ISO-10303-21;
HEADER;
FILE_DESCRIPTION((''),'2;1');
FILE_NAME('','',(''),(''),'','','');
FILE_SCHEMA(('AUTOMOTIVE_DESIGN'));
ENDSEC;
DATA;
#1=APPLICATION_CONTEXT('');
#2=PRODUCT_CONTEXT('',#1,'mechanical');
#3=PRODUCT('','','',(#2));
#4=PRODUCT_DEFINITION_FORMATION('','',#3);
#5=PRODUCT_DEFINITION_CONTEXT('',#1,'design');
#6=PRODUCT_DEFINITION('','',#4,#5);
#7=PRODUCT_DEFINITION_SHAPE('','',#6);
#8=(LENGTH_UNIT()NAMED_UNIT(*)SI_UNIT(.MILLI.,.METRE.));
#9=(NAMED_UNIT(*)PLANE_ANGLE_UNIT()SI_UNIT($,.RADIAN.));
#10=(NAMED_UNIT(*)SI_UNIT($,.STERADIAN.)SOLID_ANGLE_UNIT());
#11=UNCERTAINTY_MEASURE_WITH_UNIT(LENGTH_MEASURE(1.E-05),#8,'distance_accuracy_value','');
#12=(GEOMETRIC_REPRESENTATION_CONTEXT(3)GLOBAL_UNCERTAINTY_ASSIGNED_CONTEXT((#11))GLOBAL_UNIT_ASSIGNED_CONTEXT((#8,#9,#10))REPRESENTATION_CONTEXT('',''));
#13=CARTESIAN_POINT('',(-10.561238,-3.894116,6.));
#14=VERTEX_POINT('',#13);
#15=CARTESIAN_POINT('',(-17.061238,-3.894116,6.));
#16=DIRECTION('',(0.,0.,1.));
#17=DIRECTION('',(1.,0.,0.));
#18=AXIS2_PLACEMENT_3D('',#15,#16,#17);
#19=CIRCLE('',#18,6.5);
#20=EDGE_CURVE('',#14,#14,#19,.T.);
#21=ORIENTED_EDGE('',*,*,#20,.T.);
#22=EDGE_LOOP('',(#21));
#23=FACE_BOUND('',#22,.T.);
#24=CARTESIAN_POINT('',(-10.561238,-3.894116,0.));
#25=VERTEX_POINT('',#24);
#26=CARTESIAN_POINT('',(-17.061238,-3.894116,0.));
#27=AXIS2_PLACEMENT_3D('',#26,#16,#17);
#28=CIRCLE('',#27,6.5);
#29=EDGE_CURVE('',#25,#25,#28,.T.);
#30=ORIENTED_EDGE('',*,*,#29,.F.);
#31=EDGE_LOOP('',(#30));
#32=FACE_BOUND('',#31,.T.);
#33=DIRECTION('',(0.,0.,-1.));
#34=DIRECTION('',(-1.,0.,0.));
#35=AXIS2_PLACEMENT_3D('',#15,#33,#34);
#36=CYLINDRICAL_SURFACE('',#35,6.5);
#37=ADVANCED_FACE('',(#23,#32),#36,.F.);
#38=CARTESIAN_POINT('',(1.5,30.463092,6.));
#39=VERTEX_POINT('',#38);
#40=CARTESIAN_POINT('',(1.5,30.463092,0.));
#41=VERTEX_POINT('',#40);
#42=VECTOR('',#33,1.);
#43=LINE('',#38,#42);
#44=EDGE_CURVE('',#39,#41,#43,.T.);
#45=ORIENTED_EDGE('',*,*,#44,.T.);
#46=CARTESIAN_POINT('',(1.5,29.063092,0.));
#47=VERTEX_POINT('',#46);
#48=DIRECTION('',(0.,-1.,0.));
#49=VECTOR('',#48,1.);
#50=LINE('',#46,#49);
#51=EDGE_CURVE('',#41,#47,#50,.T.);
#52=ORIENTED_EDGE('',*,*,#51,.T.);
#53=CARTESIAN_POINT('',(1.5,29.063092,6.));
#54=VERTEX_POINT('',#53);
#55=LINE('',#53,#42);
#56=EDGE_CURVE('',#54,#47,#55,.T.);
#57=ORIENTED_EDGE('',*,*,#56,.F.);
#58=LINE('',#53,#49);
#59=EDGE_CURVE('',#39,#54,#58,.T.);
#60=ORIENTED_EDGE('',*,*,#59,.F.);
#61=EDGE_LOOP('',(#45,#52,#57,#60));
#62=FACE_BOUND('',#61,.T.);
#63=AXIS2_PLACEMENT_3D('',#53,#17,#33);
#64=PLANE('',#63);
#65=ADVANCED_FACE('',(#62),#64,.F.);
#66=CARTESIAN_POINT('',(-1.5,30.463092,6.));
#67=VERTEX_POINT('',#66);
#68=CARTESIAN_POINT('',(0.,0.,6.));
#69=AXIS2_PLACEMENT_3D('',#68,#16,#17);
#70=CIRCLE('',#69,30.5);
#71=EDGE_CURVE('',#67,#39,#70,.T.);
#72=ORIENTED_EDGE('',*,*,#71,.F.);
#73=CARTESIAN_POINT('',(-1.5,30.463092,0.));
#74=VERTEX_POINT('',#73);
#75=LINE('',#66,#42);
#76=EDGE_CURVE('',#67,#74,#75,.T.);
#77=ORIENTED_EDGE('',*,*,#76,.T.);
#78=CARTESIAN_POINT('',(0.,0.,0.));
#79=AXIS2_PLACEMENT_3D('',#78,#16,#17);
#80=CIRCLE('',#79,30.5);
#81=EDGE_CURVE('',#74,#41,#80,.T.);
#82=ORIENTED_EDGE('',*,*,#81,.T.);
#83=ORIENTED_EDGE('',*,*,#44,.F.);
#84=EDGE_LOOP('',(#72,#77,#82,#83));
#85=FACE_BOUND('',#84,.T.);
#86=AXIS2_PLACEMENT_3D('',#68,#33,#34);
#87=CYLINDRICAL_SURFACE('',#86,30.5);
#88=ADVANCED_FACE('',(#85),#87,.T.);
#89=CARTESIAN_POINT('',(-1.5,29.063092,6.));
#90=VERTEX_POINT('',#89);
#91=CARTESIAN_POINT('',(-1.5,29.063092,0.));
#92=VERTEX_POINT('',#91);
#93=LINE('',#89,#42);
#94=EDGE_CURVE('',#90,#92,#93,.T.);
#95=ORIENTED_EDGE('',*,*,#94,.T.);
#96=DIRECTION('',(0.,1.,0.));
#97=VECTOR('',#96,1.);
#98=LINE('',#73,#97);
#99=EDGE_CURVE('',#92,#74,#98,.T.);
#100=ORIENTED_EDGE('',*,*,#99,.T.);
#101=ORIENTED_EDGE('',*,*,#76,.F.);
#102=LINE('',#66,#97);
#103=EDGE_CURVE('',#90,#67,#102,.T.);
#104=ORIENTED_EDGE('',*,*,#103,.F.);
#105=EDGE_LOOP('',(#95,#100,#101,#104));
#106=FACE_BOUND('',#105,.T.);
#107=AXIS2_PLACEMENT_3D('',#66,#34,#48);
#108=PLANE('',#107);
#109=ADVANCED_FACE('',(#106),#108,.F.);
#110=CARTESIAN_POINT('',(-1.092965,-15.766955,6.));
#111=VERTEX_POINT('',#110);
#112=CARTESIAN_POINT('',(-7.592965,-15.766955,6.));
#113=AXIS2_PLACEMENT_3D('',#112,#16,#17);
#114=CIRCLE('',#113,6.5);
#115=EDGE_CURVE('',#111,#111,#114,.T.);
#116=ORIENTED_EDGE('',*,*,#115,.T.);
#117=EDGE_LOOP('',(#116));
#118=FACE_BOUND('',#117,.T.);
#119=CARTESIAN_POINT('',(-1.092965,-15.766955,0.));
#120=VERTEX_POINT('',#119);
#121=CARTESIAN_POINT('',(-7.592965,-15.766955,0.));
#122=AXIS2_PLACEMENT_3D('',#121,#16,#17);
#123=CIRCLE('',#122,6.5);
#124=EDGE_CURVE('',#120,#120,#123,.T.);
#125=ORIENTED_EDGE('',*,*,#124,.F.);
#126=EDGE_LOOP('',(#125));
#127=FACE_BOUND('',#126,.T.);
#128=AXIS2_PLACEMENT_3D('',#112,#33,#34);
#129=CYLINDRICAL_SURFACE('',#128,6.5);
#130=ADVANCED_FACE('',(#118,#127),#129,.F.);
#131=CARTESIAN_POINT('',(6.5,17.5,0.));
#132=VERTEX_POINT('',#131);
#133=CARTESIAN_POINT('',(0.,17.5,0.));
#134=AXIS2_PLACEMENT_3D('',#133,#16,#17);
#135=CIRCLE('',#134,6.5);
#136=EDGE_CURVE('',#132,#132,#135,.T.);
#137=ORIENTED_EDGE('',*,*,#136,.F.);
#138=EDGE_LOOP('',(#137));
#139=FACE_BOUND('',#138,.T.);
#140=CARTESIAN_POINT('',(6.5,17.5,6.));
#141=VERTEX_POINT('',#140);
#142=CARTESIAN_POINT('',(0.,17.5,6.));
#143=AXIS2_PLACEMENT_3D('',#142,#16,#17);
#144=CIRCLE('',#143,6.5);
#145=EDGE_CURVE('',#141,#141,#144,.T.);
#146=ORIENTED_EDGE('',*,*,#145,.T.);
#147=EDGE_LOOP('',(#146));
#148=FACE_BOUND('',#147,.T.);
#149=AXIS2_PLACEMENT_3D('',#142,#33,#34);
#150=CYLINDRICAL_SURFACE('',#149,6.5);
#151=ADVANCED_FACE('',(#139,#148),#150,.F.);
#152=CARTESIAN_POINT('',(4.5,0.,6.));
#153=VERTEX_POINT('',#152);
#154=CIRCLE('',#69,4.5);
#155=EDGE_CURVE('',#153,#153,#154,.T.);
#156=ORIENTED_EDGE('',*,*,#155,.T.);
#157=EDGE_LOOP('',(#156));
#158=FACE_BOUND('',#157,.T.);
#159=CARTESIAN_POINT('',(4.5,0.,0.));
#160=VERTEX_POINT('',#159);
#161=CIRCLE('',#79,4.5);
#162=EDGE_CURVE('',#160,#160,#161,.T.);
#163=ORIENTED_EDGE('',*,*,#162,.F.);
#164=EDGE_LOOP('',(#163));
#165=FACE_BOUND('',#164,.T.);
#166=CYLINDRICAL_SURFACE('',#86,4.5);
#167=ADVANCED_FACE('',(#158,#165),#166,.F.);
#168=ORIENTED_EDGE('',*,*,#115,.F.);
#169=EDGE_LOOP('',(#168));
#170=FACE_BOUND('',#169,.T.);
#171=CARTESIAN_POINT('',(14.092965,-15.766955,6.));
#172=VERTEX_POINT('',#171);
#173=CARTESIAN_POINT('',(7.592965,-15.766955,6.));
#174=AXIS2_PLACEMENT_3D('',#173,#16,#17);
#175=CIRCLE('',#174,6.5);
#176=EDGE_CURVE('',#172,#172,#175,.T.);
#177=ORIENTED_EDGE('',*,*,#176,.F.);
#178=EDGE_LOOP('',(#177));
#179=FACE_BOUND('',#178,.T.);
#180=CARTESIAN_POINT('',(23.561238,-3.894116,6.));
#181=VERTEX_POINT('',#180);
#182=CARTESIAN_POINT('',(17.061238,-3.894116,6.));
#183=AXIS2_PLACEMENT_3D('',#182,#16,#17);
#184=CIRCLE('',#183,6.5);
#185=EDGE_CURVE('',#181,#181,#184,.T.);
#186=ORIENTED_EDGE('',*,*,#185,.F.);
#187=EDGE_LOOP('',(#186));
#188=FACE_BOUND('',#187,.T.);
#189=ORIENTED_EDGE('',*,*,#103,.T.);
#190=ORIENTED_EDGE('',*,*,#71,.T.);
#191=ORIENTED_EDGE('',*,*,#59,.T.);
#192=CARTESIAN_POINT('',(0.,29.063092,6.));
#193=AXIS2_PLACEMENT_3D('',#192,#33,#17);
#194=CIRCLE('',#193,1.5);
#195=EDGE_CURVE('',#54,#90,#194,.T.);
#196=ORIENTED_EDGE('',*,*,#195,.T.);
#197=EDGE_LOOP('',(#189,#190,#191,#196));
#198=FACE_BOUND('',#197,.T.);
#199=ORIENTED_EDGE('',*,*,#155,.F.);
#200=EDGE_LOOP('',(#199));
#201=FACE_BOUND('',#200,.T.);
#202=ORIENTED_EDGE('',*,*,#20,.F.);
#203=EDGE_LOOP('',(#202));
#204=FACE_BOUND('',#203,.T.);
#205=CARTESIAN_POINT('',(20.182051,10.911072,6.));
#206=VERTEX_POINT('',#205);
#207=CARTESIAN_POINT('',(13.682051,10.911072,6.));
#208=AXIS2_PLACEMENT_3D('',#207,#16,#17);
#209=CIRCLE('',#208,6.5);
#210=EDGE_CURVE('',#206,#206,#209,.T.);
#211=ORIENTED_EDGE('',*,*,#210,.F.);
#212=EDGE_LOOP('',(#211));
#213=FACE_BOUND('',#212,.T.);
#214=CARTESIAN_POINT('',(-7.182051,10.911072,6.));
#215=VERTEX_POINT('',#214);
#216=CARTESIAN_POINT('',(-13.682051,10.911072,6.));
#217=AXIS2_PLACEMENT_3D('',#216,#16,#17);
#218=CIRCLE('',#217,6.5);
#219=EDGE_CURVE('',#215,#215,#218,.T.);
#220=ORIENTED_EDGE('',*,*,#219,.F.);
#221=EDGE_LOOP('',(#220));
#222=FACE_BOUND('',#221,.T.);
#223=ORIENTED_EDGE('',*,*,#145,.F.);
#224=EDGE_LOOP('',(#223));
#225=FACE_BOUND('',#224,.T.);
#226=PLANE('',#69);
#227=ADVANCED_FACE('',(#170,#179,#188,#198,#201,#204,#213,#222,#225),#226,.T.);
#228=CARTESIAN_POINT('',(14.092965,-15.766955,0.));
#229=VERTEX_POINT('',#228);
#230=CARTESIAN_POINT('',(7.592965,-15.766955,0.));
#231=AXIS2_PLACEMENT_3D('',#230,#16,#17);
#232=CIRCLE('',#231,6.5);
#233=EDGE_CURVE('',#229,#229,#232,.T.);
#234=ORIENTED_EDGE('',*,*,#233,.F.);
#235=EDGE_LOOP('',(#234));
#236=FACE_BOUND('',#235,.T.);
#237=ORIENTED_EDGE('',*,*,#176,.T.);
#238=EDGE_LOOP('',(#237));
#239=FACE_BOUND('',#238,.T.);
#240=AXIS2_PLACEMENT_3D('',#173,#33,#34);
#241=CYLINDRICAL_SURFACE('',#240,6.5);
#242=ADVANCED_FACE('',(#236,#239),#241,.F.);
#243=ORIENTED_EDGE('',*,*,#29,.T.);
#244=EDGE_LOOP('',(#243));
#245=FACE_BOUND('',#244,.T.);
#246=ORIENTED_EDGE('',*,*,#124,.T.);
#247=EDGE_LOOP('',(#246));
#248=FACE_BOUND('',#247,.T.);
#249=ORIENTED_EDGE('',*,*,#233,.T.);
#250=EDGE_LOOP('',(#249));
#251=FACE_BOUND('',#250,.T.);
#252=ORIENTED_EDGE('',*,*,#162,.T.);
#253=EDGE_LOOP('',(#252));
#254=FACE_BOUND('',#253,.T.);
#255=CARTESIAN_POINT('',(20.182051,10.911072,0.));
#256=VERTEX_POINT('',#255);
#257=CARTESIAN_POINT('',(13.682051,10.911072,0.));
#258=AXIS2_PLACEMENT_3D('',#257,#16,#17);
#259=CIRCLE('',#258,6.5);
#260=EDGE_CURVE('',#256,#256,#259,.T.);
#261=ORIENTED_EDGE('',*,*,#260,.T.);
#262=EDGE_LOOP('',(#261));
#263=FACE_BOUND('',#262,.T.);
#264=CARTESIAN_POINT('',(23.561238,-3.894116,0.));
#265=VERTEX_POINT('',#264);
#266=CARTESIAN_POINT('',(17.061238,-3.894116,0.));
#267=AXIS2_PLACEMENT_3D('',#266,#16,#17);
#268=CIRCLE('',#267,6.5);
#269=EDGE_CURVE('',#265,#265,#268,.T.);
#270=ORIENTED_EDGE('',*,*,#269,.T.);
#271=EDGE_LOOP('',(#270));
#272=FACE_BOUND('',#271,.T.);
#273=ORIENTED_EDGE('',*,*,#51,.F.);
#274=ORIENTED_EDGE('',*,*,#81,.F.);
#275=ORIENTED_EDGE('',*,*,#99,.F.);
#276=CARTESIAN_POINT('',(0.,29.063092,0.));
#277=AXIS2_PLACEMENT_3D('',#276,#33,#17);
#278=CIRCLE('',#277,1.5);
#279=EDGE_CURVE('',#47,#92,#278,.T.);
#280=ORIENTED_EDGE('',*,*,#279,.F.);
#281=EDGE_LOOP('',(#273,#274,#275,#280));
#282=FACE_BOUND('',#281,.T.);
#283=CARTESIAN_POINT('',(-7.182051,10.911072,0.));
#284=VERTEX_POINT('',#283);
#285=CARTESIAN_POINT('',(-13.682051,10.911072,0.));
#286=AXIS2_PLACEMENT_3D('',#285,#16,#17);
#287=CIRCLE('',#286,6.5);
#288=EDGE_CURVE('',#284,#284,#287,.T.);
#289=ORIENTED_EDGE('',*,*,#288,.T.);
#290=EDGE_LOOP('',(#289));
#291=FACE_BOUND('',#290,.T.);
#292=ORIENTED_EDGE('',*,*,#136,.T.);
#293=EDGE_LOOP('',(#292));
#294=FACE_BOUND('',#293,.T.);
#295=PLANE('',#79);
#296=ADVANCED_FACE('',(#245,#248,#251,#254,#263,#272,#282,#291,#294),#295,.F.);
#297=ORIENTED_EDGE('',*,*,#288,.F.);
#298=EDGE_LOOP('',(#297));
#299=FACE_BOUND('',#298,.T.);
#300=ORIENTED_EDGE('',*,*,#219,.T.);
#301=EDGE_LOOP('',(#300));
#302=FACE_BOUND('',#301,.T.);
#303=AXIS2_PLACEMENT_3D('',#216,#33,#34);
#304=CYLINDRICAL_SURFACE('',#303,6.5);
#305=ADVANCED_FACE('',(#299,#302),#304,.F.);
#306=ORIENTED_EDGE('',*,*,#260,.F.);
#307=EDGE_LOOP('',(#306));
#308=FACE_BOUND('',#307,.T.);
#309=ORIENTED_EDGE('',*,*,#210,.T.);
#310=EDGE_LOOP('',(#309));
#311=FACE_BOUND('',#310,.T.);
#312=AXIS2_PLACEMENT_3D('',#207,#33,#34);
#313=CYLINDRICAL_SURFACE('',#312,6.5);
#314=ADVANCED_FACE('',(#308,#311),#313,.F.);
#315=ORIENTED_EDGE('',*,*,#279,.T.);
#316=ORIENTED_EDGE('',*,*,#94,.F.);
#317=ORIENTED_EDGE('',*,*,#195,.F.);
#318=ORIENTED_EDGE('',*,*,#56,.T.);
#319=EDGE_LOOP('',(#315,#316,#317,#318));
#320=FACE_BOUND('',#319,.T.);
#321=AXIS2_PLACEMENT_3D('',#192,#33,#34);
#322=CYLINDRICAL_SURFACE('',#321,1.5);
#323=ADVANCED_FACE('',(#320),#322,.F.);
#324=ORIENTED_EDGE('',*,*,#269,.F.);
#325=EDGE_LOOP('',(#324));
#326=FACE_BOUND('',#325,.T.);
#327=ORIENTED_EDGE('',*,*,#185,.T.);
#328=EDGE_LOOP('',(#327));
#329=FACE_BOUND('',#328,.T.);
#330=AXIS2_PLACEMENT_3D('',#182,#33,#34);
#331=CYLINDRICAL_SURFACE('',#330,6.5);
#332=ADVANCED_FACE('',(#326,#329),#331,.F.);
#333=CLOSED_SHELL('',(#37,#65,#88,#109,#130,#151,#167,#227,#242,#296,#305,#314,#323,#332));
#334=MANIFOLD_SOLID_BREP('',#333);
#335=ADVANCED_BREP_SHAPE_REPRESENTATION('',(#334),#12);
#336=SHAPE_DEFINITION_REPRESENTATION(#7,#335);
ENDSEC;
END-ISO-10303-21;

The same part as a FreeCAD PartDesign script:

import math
import FreeCAD as App
import Part
import Sketcher

V = App.Vector

doc = App.newDocument("Part")
params = doc.addObject("Spreadsheet::Sheet", "Params")
for row, (alias, value) in enumerate([
    ("sketch1_diameter", "13 mm"),
    ("sketch1_diameter2", "9 mm"),
    ("sketch1_radius", "30.5 mm"),
    ("sketch1_radius2", "1.5 mm"),
    ("sketch1_height", "1.4 mm"),
    ("pad1_length", "6 mm"),
], start=1):
    params.set(f"A{row}", alias)
    params.set(f"B{row}", "=" + value)
    params.setAlias(f"B{row}", alias)

body = doc.addObject("PartDesign::Body", "Body")

# Sketch on XY plane
sketch1 = body.newObject("Sketcher::SketchObject", "Sketch")
sketch1.AttachmentSupport = (doc.getObject("XY_Plane"), [""])
sketch1.MapMode = "FlatFace"
sketch1.addGeometry([
    Part.LineSegment(V(-1.5, 29.1, 0), V(-1.5, 30.5, 0)),  # 0
    Part.ArcOfCircle(Part.Circle(V(0, 0, 0), V(0, 0, 1), 30.5), math.radians(93), math.radians(447)),  # 1
    Part.LineSegment(V(1.5, 30.5, 0), V(1.5, 29.1, 0)),  # 2
    Part.ArcOfCircle(Part.Circle(V(0, 29.1, 0), V(0, 0, 1), 1.5), math.radians(180), math.radians(360)),  # 3
    Part.Circle(V(7.6, -15.8, 0), V(0, 0, 1), 6.5),  # 4
    Part.Circle(V(17.1, -3.9, 0), V(0, 0, 1), 6.5),  # 5
    Part.Circle(V(-7.6, -15.8, 0), V(0, 0, 1), 6.5),  # 6
    Part.Circle(V(0, 0, 0), V(0, 0, 1), 4.5),  # 7
    Part.Circle(V(-17.1, -3.9, 0), V(0, 0, 1), 6.5),  # 8
    Part.Circle(V(13.7, 10.9, 0), V(0, 0, 1), 6.5),  # 9
    Part.Circle(V(-13.7, 10.9, 0), V(0, 0, 1), 6.5),  # 10
    Part.Circle(V(0, 17.5, 0), V(0, 0, 1), 6.5),  # 11
], False)
sketch1.addConstraint([
    Sketcher.Constraint("Coincident", 0, 2, 1, 1),
    Sketcher.Constraint("Coincident", 1, 2, 2, 1),
    Sketcher.Constraint("Tangent", 2, 2, 3, 2),
    Sketcher.Constraint("Tangent", 3, 1, 0, 1),
    Sketcher.Constraint("Vertical", 0),
    Sketcher.Constraint("Vertical", 2),
    Sketcher.Constraint("Coincident", 1, 3, -1, 1),
    Sketcher.Constraint("Coincident", 7, 3, -1, 1),
    Sketcher.Constraint("Equal", 4, 5),
    Sketcher.Constraint("Equal", 5, 6),
    Sketcher.Constraint("Equal", 6, 8),
    Sketcher.Constraint("Equal", 8, 9),
    Sketcher.Constraint("Equal", 9, 10),
    Sketcher.Constraint("Equal", 10, 11),
    Sketcher.Constraint("Symmetric", 4, 3, 6, 3, -2),
    Sketcher.Constraint("Symmetric", 5, 3, 8, 3, -2),
    Sketcher.Constraint("Symmetric", 9, 3, 10, 3, -2),
    Sketcher.Constraint("PointOnObject", 3, 3, -2),
    Sketcher.Constraint("PointOnObject", 11, 3, -2),
    Sketcher.Constraint("Diameter", 4, 13.0),
    Sketcher.Constraint("Diameter", 7, 9.0),
    Sketcher.Constraint("Radius", 1, 30.5),
    Sketcher.Constraint("Radius", 3, 1.5),
    Sketcher.Constraint("DistanceY", 0, 1, 0, 2, 1.4),
    Sketcher.Constraint("DistanceY", -1, 1, 11, 3, 17.5),
    Sketcher.Constraint("DistanceX", 10, 3, 9, 3, 27.364102),
    Sketcher.Constraint("DistanceX", -1, 1, 5, 3, 17.061238),
    Sketcher.Constraint("DistanceY", -1, 1, 9, 3, 10.911072),
    Sketcher.Constraint("DistanceY", 4, 3, 5, 3, 11.872839),
    Sketcher.Constraint("DistanceY", 5, 3, 3, 3, 32.957209),
    Sketcher.Constraint("DistanceX", 6, 3, 4, 3, 15.185931),
])
sketch1.setExpression("Constraints[19]", "Params.sketch1_diameter")
sketch1.setExpression("Constraints[20]", "Params.sketch1_diameter2")
sketch1.setExpression("Constraints[21]", "Params.sketch1_radius")
sketch1.setExpression("Constraints[22]", "Params.sketch1_radius2")
sketch1.setExpression("Constraints[23]", "Params.sketch1_height")
pad1 = body.newObject("PartDesign::Pad", "Pad")
pad1.Profile = sketch1
pad1.setExpression("Length", "Params.pad1_length")

doc.recompute()
